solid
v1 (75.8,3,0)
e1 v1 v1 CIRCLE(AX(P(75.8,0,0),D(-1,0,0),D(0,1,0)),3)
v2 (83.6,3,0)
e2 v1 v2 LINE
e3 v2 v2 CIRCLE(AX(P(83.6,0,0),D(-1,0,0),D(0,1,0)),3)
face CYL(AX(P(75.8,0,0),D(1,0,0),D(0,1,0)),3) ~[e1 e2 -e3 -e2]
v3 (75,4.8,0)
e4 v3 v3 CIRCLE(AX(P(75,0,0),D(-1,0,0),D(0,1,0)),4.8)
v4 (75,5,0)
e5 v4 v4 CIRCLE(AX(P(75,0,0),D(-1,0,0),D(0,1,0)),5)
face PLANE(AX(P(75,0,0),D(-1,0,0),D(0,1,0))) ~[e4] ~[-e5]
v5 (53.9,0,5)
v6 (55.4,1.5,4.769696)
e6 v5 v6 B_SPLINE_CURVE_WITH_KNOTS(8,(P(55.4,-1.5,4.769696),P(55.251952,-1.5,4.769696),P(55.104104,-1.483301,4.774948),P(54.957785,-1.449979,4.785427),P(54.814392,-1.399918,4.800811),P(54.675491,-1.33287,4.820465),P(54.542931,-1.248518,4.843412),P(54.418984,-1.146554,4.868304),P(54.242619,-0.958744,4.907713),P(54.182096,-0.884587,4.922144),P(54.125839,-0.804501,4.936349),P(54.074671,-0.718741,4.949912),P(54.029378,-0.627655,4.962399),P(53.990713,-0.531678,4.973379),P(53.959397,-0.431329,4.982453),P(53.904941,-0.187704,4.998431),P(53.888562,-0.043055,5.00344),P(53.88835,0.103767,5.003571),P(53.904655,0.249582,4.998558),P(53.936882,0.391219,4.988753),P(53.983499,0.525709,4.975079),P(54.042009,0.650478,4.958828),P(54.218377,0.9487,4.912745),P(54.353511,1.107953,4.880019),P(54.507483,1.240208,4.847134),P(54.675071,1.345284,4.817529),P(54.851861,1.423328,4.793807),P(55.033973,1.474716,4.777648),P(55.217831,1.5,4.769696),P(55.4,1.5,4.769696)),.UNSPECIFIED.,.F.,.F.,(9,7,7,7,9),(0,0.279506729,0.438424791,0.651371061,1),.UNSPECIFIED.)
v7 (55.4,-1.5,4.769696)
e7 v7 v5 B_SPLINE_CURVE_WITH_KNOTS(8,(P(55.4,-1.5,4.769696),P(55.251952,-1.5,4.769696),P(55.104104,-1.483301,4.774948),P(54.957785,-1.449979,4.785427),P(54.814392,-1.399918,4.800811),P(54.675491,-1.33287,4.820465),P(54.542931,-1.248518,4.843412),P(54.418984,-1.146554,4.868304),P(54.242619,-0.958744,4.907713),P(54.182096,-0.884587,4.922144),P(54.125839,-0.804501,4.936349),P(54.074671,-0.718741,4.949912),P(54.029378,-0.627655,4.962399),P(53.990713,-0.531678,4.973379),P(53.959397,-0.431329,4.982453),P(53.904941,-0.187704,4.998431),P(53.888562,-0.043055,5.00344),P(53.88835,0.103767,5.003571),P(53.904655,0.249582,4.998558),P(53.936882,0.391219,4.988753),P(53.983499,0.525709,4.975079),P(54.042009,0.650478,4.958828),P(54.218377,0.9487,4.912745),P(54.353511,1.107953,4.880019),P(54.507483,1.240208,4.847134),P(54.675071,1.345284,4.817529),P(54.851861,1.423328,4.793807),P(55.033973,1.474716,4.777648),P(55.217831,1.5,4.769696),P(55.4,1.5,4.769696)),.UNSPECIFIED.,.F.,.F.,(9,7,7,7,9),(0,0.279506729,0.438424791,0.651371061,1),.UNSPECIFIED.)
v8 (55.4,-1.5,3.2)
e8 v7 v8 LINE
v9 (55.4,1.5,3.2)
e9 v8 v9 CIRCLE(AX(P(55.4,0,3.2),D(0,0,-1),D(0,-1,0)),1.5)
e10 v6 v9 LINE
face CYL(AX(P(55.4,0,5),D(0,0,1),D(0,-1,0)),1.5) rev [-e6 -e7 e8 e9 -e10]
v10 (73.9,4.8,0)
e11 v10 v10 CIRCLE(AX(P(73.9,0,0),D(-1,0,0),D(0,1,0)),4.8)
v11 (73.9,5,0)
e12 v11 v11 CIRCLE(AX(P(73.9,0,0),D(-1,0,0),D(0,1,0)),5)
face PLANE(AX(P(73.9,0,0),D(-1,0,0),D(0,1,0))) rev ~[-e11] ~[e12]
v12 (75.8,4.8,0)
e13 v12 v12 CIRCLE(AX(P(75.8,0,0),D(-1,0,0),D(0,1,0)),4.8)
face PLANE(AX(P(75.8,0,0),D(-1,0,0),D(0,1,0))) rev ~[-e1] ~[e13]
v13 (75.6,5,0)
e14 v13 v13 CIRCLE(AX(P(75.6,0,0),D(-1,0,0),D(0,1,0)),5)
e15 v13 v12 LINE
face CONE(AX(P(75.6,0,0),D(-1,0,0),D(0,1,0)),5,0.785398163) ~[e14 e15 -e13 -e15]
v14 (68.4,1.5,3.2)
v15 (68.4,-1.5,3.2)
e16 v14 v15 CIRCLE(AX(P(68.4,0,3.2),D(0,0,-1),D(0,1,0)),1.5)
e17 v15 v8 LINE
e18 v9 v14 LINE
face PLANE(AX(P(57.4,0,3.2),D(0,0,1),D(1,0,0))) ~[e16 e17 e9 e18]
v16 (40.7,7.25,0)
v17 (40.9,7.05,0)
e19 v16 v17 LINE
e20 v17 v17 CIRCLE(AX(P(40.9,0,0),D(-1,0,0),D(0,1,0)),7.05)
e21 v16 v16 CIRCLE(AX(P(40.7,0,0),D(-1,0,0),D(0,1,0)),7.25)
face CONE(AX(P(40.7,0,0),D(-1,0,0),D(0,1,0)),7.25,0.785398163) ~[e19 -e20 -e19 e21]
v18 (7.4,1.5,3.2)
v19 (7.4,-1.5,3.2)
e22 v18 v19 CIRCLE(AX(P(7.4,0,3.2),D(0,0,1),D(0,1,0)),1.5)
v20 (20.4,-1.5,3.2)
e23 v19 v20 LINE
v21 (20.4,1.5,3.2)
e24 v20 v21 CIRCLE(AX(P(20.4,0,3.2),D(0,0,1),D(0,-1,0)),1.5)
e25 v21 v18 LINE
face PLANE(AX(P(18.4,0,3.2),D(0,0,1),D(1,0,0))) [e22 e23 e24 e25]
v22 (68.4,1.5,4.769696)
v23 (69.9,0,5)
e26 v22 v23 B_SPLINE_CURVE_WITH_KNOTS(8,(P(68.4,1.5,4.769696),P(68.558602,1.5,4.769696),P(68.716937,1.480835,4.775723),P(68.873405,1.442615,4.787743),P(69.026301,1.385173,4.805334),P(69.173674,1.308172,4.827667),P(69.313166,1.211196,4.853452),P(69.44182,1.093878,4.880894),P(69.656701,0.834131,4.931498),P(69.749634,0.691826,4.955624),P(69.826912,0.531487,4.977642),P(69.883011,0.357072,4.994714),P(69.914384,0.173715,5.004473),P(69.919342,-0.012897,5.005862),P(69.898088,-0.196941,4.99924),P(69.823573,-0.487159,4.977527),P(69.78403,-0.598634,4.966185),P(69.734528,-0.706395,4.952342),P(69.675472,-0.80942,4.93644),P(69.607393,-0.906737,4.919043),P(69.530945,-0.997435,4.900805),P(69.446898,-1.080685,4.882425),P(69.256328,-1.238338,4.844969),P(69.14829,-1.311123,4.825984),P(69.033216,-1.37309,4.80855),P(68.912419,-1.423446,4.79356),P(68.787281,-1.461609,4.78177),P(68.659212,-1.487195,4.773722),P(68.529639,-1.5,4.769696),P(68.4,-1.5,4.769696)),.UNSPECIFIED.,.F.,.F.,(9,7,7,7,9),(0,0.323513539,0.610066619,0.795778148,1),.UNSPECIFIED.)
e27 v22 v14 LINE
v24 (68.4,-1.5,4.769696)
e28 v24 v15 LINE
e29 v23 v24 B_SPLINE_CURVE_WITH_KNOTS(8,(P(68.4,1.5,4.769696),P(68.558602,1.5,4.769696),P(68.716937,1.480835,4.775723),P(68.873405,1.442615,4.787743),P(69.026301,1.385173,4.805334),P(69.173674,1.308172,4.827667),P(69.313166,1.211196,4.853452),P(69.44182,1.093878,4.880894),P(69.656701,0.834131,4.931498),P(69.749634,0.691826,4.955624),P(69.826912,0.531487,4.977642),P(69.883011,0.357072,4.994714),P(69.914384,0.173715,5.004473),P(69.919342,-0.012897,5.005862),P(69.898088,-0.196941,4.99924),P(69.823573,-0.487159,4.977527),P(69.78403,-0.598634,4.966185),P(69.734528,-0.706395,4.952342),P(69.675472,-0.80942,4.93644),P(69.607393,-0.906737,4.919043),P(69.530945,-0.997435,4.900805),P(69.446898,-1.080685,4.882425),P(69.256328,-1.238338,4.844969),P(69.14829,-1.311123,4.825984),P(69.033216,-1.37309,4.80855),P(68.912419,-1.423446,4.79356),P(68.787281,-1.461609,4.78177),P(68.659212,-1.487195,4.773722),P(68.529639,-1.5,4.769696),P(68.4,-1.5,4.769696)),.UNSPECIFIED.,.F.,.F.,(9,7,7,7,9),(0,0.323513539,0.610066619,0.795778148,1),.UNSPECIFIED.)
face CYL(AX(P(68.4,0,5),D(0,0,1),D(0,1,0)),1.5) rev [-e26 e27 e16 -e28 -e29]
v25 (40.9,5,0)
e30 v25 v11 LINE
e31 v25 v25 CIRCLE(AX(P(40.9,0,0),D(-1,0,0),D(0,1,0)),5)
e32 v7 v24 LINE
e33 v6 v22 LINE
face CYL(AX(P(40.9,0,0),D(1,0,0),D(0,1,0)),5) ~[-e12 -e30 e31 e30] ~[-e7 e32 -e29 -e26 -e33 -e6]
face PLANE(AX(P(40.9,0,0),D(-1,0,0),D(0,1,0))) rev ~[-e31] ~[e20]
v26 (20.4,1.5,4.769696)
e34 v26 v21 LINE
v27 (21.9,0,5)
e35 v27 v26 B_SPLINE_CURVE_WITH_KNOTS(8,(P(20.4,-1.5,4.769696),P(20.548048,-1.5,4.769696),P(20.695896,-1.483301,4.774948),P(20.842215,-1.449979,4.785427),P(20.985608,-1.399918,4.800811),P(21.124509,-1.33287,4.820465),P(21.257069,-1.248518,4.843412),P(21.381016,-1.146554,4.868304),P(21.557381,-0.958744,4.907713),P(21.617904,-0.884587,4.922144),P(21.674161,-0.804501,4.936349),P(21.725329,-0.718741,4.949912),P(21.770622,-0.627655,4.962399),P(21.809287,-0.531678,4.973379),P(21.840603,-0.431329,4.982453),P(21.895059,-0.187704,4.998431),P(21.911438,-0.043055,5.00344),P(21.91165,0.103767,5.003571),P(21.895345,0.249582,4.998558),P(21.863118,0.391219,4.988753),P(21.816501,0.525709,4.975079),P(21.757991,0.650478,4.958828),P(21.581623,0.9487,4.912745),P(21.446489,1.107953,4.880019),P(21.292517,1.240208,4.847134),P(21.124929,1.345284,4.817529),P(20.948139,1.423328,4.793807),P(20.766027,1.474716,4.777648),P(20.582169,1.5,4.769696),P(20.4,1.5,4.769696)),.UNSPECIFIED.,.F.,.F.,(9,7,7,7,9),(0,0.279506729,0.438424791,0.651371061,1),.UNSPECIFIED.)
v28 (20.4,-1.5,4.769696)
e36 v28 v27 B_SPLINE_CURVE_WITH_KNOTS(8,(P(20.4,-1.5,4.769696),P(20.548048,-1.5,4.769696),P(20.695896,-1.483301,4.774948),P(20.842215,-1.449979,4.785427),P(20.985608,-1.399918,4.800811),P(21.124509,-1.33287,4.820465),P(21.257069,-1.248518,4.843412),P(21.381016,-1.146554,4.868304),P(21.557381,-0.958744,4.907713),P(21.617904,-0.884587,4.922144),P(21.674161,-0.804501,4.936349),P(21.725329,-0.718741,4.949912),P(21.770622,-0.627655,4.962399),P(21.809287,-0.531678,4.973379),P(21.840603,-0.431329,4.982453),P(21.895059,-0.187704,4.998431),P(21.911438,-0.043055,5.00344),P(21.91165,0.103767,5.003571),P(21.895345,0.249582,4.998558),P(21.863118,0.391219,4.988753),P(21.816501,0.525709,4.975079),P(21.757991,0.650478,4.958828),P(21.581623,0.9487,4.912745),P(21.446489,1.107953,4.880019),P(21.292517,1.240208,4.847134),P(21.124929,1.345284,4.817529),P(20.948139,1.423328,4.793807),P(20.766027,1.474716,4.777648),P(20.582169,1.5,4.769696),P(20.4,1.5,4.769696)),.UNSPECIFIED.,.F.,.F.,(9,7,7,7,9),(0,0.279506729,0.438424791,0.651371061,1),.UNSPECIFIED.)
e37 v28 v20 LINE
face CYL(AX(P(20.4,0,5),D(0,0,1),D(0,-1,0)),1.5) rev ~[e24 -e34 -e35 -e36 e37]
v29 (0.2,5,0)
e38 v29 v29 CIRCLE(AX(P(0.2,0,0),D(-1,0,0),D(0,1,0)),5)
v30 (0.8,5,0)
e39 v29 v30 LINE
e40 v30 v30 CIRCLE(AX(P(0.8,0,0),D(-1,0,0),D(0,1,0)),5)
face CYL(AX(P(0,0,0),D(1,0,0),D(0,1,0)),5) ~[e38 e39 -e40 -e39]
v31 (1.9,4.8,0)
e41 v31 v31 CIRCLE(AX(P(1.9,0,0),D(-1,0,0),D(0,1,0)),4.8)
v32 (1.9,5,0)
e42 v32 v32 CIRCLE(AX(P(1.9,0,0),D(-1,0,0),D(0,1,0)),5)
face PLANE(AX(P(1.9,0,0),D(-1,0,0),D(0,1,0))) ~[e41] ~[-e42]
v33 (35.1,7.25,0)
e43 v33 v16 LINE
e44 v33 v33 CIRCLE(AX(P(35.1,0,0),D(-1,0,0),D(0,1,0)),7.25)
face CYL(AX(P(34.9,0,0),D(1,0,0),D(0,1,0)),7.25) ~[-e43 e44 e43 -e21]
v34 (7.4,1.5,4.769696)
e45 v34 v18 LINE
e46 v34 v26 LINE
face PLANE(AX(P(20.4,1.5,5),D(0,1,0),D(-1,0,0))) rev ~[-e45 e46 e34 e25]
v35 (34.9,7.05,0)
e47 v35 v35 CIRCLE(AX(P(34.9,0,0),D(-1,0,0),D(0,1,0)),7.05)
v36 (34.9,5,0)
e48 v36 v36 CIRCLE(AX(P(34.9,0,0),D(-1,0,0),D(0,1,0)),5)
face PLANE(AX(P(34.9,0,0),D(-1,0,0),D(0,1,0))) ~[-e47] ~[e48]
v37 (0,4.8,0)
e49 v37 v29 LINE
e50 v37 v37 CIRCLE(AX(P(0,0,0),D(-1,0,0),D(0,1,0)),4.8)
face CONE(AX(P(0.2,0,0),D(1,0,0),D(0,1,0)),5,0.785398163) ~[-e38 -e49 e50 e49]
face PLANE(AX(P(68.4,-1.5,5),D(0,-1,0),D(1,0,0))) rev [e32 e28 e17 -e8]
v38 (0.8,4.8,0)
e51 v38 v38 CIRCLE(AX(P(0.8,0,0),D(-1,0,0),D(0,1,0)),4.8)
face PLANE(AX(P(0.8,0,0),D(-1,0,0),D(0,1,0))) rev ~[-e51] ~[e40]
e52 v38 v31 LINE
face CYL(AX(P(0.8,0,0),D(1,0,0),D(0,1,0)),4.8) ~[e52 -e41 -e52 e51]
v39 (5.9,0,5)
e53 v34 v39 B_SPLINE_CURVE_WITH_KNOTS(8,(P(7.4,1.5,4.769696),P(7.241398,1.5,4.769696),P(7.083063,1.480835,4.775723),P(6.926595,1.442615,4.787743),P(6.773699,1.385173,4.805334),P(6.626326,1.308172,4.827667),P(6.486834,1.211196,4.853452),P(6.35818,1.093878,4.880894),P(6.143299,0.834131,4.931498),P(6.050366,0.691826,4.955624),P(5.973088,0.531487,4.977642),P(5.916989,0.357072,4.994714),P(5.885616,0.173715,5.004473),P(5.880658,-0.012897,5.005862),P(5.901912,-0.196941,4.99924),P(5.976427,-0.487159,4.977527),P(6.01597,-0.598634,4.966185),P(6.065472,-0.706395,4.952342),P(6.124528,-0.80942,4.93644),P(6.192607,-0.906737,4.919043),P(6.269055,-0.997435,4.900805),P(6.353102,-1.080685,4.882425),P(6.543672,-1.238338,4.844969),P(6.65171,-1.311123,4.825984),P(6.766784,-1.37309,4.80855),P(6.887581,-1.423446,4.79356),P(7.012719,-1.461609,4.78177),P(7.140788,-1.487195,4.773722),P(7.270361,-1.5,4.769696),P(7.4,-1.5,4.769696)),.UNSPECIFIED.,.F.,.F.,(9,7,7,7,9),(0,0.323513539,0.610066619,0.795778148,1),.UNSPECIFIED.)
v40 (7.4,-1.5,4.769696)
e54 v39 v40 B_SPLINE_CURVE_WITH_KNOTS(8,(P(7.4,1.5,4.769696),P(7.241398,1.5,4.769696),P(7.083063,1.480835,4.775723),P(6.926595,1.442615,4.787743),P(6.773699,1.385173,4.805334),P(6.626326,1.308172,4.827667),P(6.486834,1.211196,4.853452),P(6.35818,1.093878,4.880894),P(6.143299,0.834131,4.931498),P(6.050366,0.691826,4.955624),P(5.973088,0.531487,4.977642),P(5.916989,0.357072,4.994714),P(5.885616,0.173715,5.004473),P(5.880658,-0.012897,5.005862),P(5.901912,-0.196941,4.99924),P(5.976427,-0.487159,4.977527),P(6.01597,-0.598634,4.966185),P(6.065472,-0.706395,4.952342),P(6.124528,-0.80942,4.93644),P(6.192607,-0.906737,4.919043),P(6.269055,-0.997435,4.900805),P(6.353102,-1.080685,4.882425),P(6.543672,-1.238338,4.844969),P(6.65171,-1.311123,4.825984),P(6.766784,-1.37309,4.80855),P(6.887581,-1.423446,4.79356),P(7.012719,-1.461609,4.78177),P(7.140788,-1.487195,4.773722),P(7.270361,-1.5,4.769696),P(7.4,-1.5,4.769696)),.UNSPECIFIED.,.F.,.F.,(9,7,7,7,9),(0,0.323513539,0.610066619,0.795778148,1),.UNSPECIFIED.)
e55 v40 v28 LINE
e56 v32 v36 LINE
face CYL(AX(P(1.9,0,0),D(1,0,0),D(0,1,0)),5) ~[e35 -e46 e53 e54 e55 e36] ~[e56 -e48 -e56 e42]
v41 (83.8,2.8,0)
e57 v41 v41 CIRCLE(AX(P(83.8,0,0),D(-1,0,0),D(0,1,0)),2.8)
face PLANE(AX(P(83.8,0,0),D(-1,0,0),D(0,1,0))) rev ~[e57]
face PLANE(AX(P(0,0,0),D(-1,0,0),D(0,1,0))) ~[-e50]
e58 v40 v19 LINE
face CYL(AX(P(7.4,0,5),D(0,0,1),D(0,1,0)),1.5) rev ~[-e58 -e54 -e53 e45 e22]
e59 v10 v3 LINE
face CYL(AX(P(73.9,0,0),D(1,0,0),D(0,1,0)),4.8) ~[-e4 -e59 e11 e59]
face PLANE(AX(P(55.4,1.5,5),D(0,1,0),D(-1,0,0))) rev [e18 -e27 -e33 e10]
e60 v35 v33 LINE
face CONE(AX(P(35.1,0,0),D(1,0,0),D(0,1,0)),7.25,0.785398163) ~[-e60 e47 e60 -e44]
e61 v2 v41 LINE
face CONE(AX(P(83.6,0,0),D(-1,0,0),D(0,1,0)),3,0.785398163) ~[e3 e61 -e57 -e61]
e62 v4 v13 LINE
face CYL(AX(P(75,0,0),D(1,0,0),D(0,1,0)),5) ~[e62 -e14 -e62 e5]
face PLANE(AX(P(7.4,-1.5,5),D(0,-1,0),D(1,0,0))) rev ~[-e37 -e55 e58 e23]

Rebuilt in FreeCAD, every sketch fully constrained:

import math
import FreeCAD as App
import Part
import Sketcher

V = App.Vector


def edges_at(feature, points):
    """Names of the edges that pass closest to the given points."""
    edges = feature.Shape.Edges
    near = lambda p: min(range(len(edges)), key=lambda i: edges[i].distToShape(Part.Vertex(*p))[0])
    return sorted({f"Edge{near(p) + 1}" for p in points})

doc = App.newDocument("Part")
params = doc.addObject("Spreadsheet::Sheet", "Params")
for row, (alias, value) in enumerate([
    ("sketch1_width", "8 mm"),
    ("sketch1_width2", "6 mm"),
    ("sketch1_width3", "0.8 mm"),
    ("sketch1_width4", "1.1 mm"),
    ("sketch1_width5", "33 mm"),
    ("revolution_angle", "360 deg"),
    ("chamfer_size", "0.2 mm"),
    ("sketch2_radius", "1.5 mm"),
    ("sketch2_width", "13 mm"),
    ("pocket1_length", "1.8 mm"),
], start=1):
    params.set(f"A{row}", alias)
    params.set(f"B{row}", "=" + value)
    params.setAlias(f"B{row}", alias)

body = doc.addObject("PartDesign::Body", "Body")

sketch1 = body.newObject("Sketcher::SketchObject", "Sketch")
sketch1.AttachmentSupport = (doc.getObject("XY_Plane"), [""])
sketch1.MapMode = "FlatFace"
sketch1.addGeometry([
    Part.LineSegment(V(0, 5, 0), V(0, 0, 0)),
    Part.LineSegment(V(0, 0, 0), V(83.8, 0, 0)),
    Part.LineSegment(V(83.8, 0, 0), V(83.8, 3, 0)),
    Part.LineSegment(V(83.8, 3, 0), V(75.8, 3, 0)),
    Part.LineSegment(V(75.8, 3, 0), V(75.8, 5, 0)),
    Part.LineSegment(V(75.8, 5, 0), V(75, 5, 0)),
    Part.LineSegment(V(75, 5, 0), V(75, 4.8, 0)),
    Part.LineSegment(V(75, 4.8, 0), V(73.9, 4.8, 0)),
    Part.LineSegment(V(73.9, 4.8, 0), V(73.9, 5, 0)),
    Part.LineSegment(V(73.9, 5, 0), V(40.9, 5, 0)),
    Part.LineSegment(V(40.9, 5, 0), V(40.9, 7.25, 0)),
    Part.LineSegment(V(40.9, 7.25, 0), V(34.9, 7.25, 0)),
    Part.LineSegment(V(34.9, 7.25, 0), V(34.9, 5, 0)),
    Part.LineSegment(V(34.9, 5, 0), V(1.9, 5, 0)),
    Part.LineSegment(V(1.9, 5, 0), V(1.9, 4.8, 0)),
    Part.LineSegment(V(1.9, 4.8, 0), V(0.8, 4.8, 0)),
    Part.LineSegment(V(0.8, 4.8, 0), V(0.8, 5, 0)),
    Part.LineSegment(V(0.8, 5, 0), V(0, 5, 0)),
], False)
sketch1.addConstraint([
    Sketcher.Constraint("Coincident", 0, 2, 1, 1),
    Sketcher.Constraint("Coincident", 1, 2, 2, 1),
    Sketcher.Constraint("Coincident", 2, 2, 3, 1),
    Sketcher.Constraint("Coincident", 3, 2, 4, 1),
    Sketcher.Constraint("Coincident", 4, 2, 5, 1),
    Sketcher.Constraint("Coincident", 5, 2, 6, 1),
    Sketcher.Constraint("Coincident", 6, 2, 7, 1),
    Sketcher.Constraint("Coincident", 7, 2, 8, 1),
    Sketcher.Constraint("Coincident", 8, 2, 9, 1),
    Sketcher.Constraint("Coincident", 9, 2, 10, 1),
    Sketcher.Constraint("Coincident", 10, 2, 11, 1),
    Sketcher.Constraint("Coincident", 11, 2, 12, 1),
    Sketcher.Constraint("Coincident", 12, 2, 13, 1),
    Sketcher.Constraint("Coincident", 13, 2, 14, 1),
    Sketcher.Constraint("Coincident", 14, 2, 15, 1),
    Sketcher.Constraint("Coincident", 15, 2, 16, 1),
    Sketcher.Constraint("Coincident", 16, 2, 17, 1),
    Sketcher.Constraint("Coincident", 17, 2, 0, 1),
    Sketcher.Constraint("Vertical", 0),
    Sketcher.Constraint("Horizontal", 1),
    Sketcher.Constraint("Vertical", 2),
    Sketcher.Constraint("Horizontal", 3),
    Sketcher.Constraint("Vertical", 4),
    Sketcher.Constraint("Horizontal", 5),
    Sketcher.Constraint("Vertical", 6),
    Sketcher.Constraint("Horizontal", 7),
    Sketcher.Constraint("Vertical", 8),
    Sketcher.Constraint("Horizontal", 9),
    Sketcher.Constraint("Vertical", 10),
    Sketcher.Constraint("Horizontal", 11),
    Sketcher.Constraint("Vertical", 12),
    Sketcher.Constraint("Horizontal", 13),
    Sketcher.Constraint("Vertical", 14),
    Sketcher.Constraint("Horizontal", 15),
    Sketcher.Constraint("Vertical", 16),
    Sketcher.Constraint("Horizontal", 17),
    Sketcher.Constraint("Coincident", 0, 2, -1, 1),
    Sketcher.Constraint("Horizontal", 5, 2, 8, 2),
    Sketcher.Constraint("Horizontal", 9, 2, 12, 2),
    Sketcher.Constraint("Horizontal", 7, 2, 14, 2),
    Sketcher.Constraint("Horizontal", 13, 2, 16, 2),
    Sketcher.Constraint("Equal", 9, 13),
    Sketcher.Constraint("Equal", 7, 15),
    Sketcher.Constraint("Equal", 5, 17),
    Sketcher.Constraint("DistanceX", 3, 2, 3, 1, 8.0),
    Sketcher.Constraint("DistanceX", 11, 2, 11, 1, 6.0),
    Sketcher.Constraint("DistanceX", 5, 2, 5, 1, 0.8),
    Sketcher.Constraint("DistanceX", 7, 2, 7, 1, 1.1),
    Sketcher.Constraint("DistanceX", 9, 2, 9, 1, 33.0),
    Sketcher.Constraint("DistanceY", 0, 2, 0, 1, 5.0),
    Sketcher.Constraint("DistanceY", 2, 1, 2, 2, 3.0),
    Sketcher.Constraint("DistanceY", 6, 2, 6, 1, 0.2),
    Sketcher.Constraint("DistanceY", 10, 1, 10, 2, 2.25),
])
sketch1.setExpression("Constraints[44]", "Params.sketch1_width")
sketch1.setExpression("Constraints[45]", "Params.sketch1_width2")
sketch1.setExpression("Constraints[46]", "Params.sketch1_width3")
sketch1.setExpression("Constraints[47]", "Params.sketch1_width4")
sketch1.setExpression("Constraints[48]", "Params.sketch1_width5")
revolution = body.newObject("PartDesign::Revolution", "Revolution")
revolution.Profile = sketch1
revolution.ReferenceAxis = (sketch1, ["H_Axis"])
revolution.setExpression("Angle", "Params.revolution_angle")
doc.recompute()

chamfer = body.newObject("PartDesign::Chamfer", "Chamfer")
chamfer.Base = (revolution, edges_at(revolution, [
    (34.9, -7.25, 0),
    (40.9, -7.25, 0),
    (75.8, -5, 0),
    (83.8, -3, 0),
    (0, -5, 0),
]))
chamfer.setExpression("Size", "Params.chamfer_size")

sketch2 = body.newObject("Sketcher::SketchObject", "Sketch001")
sketch2.AttachmentSupport = (doc.getObject("XY_Plane"), [""])
sketch2.MapMode = "FlatFace"
sketch2.AttachmentOffset = App.Placement(V(0, 0, 5), App.Rotation())
sketch2.addGeometry([
    Part.ArcOfCircle(Part.Circle(V(20.4, 0, 0), V(0, 0, 1), 1.5), math.radians(-90), math.radians(90)),
    Part.LineSegment(V(20.4, 1.5, 0), V(7.4, 1.5, 0)),
    Part.ArcOfCircle(Part.Circle(V(7.4, 0, 0), V(0, 0, 1), 1.5), math.radians(90), math.radians(270)),
    Part.LineSegment(V(7.4, -1.5, 0), V(20.4, -1.5, 0)),
], False)
sketch2.addConstraint([
    Sketcher.Constraint("Tangent", 0, 2, 1, 1),
    Sketcher.Constraint("Tangent", 1, 2, 2, 1),
    Sketcher.Constraint("Tangent", 2, 2, 3, 1),
    Sketcher.Constraint("Tangent", 3, 2, 0, 1),
    Sketcher.Constraint("Horizontal", 1),
    Sketcher.Constraint("Horizontal", 3),
    Sketcher.Constraint("PointOnObject", 0, 3, -1),
    Sketcher.Constraint("Radius", 0, 1.5),
    Sketcher.Constraint("DistanceX", 1, 2, 1, 1, 13.0),
    Sketcher.Constraint("DistanceX", -1, 1, 0, 3, 20.4),
])
sketch2.setExpression("Constraints[7]", "Params.sketch2_radius")
sketch2.setExpression("Constraints[8]", "Params.sketch2_width")
pocket1 = body.newObject("PartDesign::Pocket", "Pocket")
pocket1.Profile = sketch2
pocket1.setExpression("Length", "Params.pocket1_length")
doc.recompute()

datumplane = body.newObject("PartDesign::Plane", "DatumPlane")
datumplane.AttachmentSupport = (doc.getObject("YZ_Plane"), [""])
datumplane.MapMode = "FlatFace"
datumplane.AttachmentOffset = App.Placement(V(0, 0, 37.9), App.Rotation())
mirrored = body.newObject("PartDesign::Mirrored", "Mirrored")
mirrored.Originals = [pocket1]
mirrored.MirrorPlane = (datumplane, [""])
body.Tip = mirrored

doc.recompute()
